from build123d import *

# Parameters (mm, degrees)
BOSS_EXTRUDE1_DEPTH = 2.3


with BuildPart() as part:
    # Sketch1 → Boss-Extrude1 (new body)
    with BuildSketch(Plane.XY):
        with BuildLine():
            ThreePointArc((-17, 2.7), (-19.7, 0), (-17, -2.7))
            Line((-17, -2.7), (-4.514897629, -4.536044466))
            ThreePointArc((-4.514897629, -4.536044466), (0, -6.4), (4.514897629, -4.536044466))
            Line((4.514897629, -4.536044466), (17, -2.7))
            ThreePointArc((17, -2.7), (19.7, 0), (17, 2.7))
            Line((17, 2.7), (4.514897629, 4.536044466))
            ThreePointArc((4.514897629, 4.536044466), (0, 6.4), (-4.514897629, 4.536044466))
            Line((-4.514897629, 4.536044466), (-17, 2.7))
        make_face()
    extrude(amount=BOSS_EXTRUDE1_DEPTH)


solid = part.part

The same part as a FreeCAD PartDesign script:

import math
import FreeCAD as App
import Part
import Sketcher
from FreeCAD import Vector
Q = App.Units.Quantity

doc = App.newDocument("Part")
body = doc.addObject("PartDesign::Body", "Body")

sketch1 = doc.addObject("Sketcher::SketchObject", "Sketch")
body.addObject(sketch1)
sketch1.AttachmentSupport = (doc.XY_Plane, [""])
sketch1.MapMode = "FlatFace"
sketch1.addGeometry([
    Part.ArcOfCircle(Part.Circle(Vector(-17, 0, 0), Vector(0, 0, 1), 2.7), math.radians(90), math.radians(270)),
    Part.LineSegment(Vector(-17, -2.7, 0), Vector(-4.5, -4.5, 0)),
    Part.ArcOfCircle(Part.Circle(Vector(0, 0, 0), Vector(0, 0, 1), 6.4), math.radians(-135), math.radians(-45)),
    Part.LineSegment(Vector(4.5, -4.5, 0), Vector(17, -2.7, 0)),
    Part.ArcOfCircle(Part.Circle(Vector(17, 0, 0), Vector(0, 0, 1), 2.7), math.radians(-90), math.radians(90)),
    Part.LineSegment(Vector(17, 2.7, 0), Vector(4.5, 4.5, 0)),
    Part.ArcOfCircle(Part.Circle(Vector(0, 0, 0), Vector(0, 0, 1), 6.4), math.radians(45), math.radians(135)),
    Part.LineSegment(Vector(-4.5, 4.5, 0), Vector(-17, 2.7, 0)),
], False)
sketch1.addConstraint([
    Sketcher.Constraint("Coincident", 0, 2, 1, 1),
    Sketcher.Constraint("Coincident", 1, 2, 2, 1),
    Sketcher.Constraint("Coincident", 2, 2, 3, 1),
    Sketcher.Constraint("Coincident", 3, 2, 4, 1),
    Sketcher.Constraint("Coincident", 4, 2, 5, 1),
    Sketcher.Constraint("Coincident", 5, 2, 6, 1),
    Sketcher.Constraint("Coincident", 6, 2, 7, 1),
    Sketcher.Constraint("Coincident", 7, 2, 0, 1),
    Sketcher.Constraint("Coincident", 2, 3, -1, 1),
    Sketcher.Constraint("Coincident", 6, 3, -1, 1),
    Sketcher.Constraint("Equal", 0, 4),
    Sketcher.Constraint("Equal", 2, 6),
    Sketcher.Constraint("Symmetric", 0, 3, 4, 3, -1, 1),
    Sketcher.Constraint("Symmetric", 0, 2, 3, 2, -2),
    Sketcher.Constraint("Parallel", 1, 5),
    Sketcher.Constraint("Parallel", 3, 7),
    Sketcher.Constraint("Horizontal", 1, 2, 2, 2),
    Sketcher.Constraint("Horizontal", 5, 2, 6, 2),
    Sketcher.Constraint("Vertical", 4, 3, 3, 2),
    Sketcher.Constraint("Vertical", 3, 2, 4, 2),
    Sketcher.Constraint("Radius", 0, Q("2.7 mm")),
    Sketcher.Constraint("Radius", 2, Q("6.4 mm")),
    Sketcher.Constraint("DistanceX", 0, 3, -1, 1, Q("17 mm")),
    Sketcher.Constraint("DistanceY", 2, 2, 5, 2, Q("9.072089 mm")),
])
pad1 = doc.addObject("PartDesign::Pad", "Pad")
body.addObject(pad1)
pad1.Profile = sketch1
pad1.Length = 2.3

doc.recompute()
